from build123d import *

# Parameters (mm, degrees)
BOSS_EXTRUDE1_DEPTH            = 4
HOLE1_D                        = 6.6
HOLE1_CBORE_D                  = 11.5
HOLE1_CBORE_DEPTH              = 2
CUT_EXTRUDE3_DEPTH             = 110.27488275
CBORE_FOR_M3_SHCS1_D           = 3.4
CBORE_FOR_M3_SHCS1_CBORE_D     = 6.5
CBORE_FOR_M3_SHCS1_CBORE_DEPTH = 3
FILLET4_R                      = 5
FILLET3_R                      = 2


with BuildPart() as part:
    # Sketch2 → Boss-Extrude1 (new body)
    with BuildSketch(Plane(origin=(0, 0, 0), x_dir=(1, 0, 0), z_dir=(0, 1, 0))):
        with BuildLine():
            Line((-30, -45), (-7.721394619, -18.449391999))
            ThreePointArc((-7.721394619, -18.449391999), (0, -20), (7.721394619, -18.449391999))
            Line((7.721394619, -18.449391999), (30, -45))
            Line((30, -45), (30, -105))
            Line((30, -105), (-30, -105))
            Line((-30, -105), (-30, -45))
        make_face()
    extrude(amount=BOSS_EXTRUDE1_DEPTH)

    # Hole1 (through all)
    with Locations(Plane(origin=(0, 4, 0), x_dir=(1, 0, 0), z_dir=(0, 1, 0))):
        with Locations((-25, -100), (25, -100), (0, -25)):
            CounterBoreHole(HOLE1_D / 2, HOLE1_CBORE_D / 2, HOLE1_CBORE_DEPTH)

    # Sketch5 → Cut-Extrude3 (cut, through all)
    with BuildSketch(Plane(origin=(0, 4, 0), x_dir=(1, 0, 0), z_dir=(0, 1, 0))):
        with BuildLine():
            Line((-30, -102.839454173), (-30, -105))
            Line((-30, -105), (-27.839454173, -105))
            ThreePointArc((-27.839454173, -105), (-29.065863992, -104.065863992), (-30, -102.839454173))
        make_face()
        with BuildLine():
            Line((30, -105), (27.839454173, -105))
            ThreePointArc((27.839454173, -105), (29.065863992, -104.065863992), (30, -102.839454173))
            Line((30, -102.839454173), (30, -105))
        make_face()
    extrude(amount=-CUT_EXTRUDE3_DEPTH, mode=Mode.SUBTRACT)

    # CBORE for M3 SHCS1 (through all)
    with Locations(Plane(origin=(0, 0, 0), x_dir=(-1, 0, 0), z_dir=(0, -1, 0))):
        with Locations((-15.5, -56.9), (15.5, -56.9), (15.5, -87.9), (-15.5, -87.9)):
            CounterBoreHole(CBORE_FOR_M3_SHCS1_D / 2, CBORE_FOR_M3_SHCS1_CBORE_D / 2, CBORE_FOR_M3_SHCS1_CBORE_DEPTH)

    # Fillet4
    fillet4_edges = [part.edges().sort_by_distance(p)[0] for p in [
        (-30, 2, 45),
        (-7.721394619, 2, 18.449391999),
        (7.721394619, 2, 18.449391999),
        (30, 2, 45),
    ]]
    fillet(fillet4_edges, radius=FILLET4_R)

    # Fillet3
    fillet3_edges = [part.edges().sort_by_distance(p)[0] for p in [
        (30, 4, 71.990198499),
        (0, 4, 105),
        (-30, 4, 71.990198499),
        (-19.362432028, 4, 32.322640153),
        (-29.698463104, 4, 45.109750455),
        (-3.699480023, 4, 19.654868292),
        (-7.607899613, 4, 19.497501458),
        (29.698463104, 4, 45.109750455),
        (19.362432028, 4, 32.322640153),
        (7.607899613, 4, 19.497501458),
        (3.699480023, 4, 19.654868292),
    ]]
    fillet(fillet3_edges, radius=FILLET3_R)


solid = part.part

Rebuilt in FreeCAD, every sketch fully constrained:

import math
import FreeCAD as App
import Part
import Sketcher
from FreeCAD import Vector
Q = App.Units.Quantity


def edges_at(feature, points):
    """Names of the edges that pass closest to the given points."""
    edges = feature.Shape.Edges
    near = lambda p: min(range(len(edges)), key=lambda i: edges[i].distToShape(Part.Vertex(*p))[0])
    return sorted({f"Edge{near(p) + 1}" for p in points})

doc = App.newDocument("Part")
params = doc.addObject("Spreadsheet::Sheet", "Params")
for row, (alias, value) in enumerate([
    ("sketch1_radius", "20 mm"),
    ("sketch1_width", "60 mm"),
    ("pad1_length", "4 mm"),
    ("sketch2_diameter", "6.6 mm"),
    ("hole_diameter", "6.6 mm"),
    ("hole_cbore_diameter", "11.5 mm"),
    ("hole_cbore_depth", "2 mm"),
    ("sketch3_radius", "5.75 mm"),
    ("sketch4_diameter", "3.4 mm"),
    ("hole2_diameter", "3.4 mm"),
    ("hole2_cbore_diameter", "6.5 mm"),
    ("hole2_cbore_depth", "3 mm"),
    ("fillet_radius", "5 mm"),
    ("fillet2_radius", "2 mm"),
], start=1):
    params.set(f"A{row}", alias)
    params.set(f"B{row}", "=" + value)
    params.setAlias(f"B{row}", alias)

body = doc.addObject("PartDesign::Body", "Body")

sketch1 = body.newObject("Sketcher::SketchObject", "Sketch")
sketch1.AttachmentSupport = (doc.getObject("XZ_Plane"), [""])
sketch1.MapMode = "FlatFace"
sketch1.addGeometry(Part.LineSegment(Vector(-7.721395, 18.449392, 0), Vector(-30, 45, 0)), False)
sketch1.addGeometry(Part.LineSegment(Vector(-30, 45, 0), Vector(-30, 105, 0)), False)
sketch1.addGeometry(Part.LineSegment(Vector(-30, 105, 0), Vector(30, 105, 0)), False)
sketch1.addGeometry(Part.LineSegment(Vector(30, 105, 0), Vector(30, 45, 0)), False)
sketch1.addGeometry(Part.LineSegment(Vector(30, 45, 0), Vector(7.721395, 18.449392, 0)), False)
sketch1.addGeometry(Part.ArcOfCircle(Part.Circle(Vector(0, 0, 0), Vector(0, 0, 1), 20), math.radians(67.289833), math.radians(112.710167)), False)
sketch1.addConstraint(Sketcher.Constraint("Coincident", 0, 2, 1, 1))
sketch1.addConstraint(Sketcher.Constraint("Coincident", 1, 2, 2, 1))
sketch1.addConstraint(Sketcher.Constraint("Coincident", 2, 2, 3, 1))
sketch1.addConstraint(Sketcher.Constraint("Coincident", 3, 2, 4, 1))
sketch1.addConstraint(Sketcher.Constraint("Coincident", 4, 2, 5, 1))
sketch1.addConstraint(Sketcher.Constraint("Coincident", 5, 2, 0, 1))
sketch1.addConstraint(Sketcher.Constraint("Vertical", 1))
sketch1.addConstraint(Sketcher.Constraint("Horizontal", 2))
sketch1.addConstraint(Sketcher.Constraint("Vertical", 3))
sketch1.addConstraint(Sketcher.Constraint("Coincident", 5, 3, -1, 1))
sketch1.addConstraint(Sketcher.Constraint("Symmetric", 0, 2, 3, 2, -2))
sketch1.addConstraint(Sketcher.Constraint("Horizontal", 4, 2, 5, 2))
sketch1.addConstraint(Sketcher.Constraint("Equal", 2, 1))
sketch1.addConstraint(Sketcher.Constraint("Radius", 5, Q("20 mm")))
sketch1.addConstraint(Sketcher.Constraint("DistanceX", 2, 1, 2, 2, Q("60 mm")))
sketch1.addConstraint(Sketcher.Constraint("Angle", 0, Q("130 deg")))
sketch1.addConstraint(Sketcher.Constraint("DistanceY", -1, 1, 0, 2, Q("45 mm")))
sketch1.setExpression("Constraints[13]", "Params.sketch1_radius")
sketch1.setExpression("Constraints[14]", "Params.sketch1_width")
pad1 = body.newObject("PartDesign::Pad", "Pad")
pad1.Profile = sketch1
pad1.setExpression("Length", "Params.pad1_length")
pad1.Reversed = True

sketch2 = body.newObject("Sketcher::SketchObject", "Sketch001")
sketch2.AttachmentSupport = (doc.getObject("XZ_Plane"), [""])
sketch2.MapMode = "FlatFace"
sketch2.AttachmentOffset = App.Placement(Vector(0, 0, -4), App.Rotation())
sketch2.addGeometry(Part.Circle(Vector(-25, 100, 0), Vector(0, 0, 1), 3.3), False)
sketch2.addGeometry(Part.Circle(Vector(25, 100, 0), Vector(0, 0, 1), 3.3), False)
sketch2.addGeometry(Part.Circle(Vector(0, 25, 0), Vector(0, 0, 1), 3.3), False)
sketch2.addConstraint(Sketcher.Constraint("Equal", 0, 1))
sketch2.addConstraint(Sketcher.Constraint("Equal", 1, 2))
sketch2.addConstraint(Sketcher.Constraint("Symmetric", 0, 3, 1, 3, -2))
sketch2.addConstraint(Sketcher.Constraint("PointOnObject", 2, 3, -2))
sketch2.addConstraint(Sketcher.Constraint("Diameter", 0, Q("6.6 mm")))
sketch2.addConstraint(Sketcher.Constraint("DistanceX", 0, 3, -1, 1, Q("25 mm")))
sketch2.addConstraint(Sketcher.Constraint("DistanceY", -1, 1, 0, 3, Q("100 mm")))
sketch2.addConstraint(Sketcher.Constraint("DistanceY", -1, 1, 2, 3, Q("25 mm")))
sketch2.setExpression("Constraints[4]", "Params.sketch2_diameter")
doc.recompute()
hole = body.newObject("PartDesign::Hole", "Hole")
hole.Profile = sketch2
hole.ThreadType = "None"
hole.setExpression("Diameter", "Params.hole_diameter")
hole.DepthType = "ThroughAll"
hole.HoleCutType = "Counterbore"
hole.setExpression("HoleCutDiameter", "Params.hole_cbore_diameter")
hole.setExpression("HoleCutDepth", "Params.hole_cbore_depth")
hole.Reversed = True

sketch3 = body.newObject("Sketcher::SketchObject", "Sketch002")
sketch3.AttachmentSupport = (doc.getObject("XZ_Plane"), [""])
sketch3.MapMode = "FlatFace"
sketch3.AttachmentOffset = App.Placement(Vector(0, 0, -4), App.Rotation())
sketch3.addGeometry(Part.LineSegment(Vector(-30, 102.839454, 0), Vector(-30, 105, 0)), False)
sketch3.addGeometry(Part.LineSegment(Vector(-30, 105, 0), Vector(-27.839454, 105, 0)), False)
sketch3.addGeometry(Part.ArcOfCircle(Part.Circle(Vector(-25, 100, 0), Vector(0, 0, 1), 5.75), math.radians(119.591846), math.radians(150.408154)), False)
sketch3.addGeometry(Part.LineSegment(Vector(27.839454, 105, 0), Vector(30, 105, 0)), False)
sketch3.addGeometry(Part.LineSegment(Vector(30, 105, 0), Vector(30, 102.839454, 0)), False)
sketch3.addGeometry(Part.ArcOfCircle(Part.Circle(Vector(25, 100, 0), Vector(0, 0, 1), 5.75), math.radians(29.591846), math.radians(60.408154)), False)
sketch3.addConstraint(Sketcher.Constraint("Coincident", 0, 2, 1, 1))
sketch3.addConstraint(Sketcher.Constraint("Coincident", 1, 2, 2, 1))
sketch3.addConstraint(Sketcher.Constraint("Coincident", 2, 2, 0, 1))
sketch3.addConstraint(Sketcher.Constraint("Coincident", 3, 2, 4, 1))
sketch3.addConstraint(Sketcher.Constraint("Coincident", 4, 2, 5, 1))
sketch3.addConstraint(Sketcher.Constraint("Coincident", 5, 2, 3, 1))
sketch3.addConstraint(Sketcher.Constraint("Vertical", 0))
sketch3.addConstraint(Sketcher.Constraint("Horizontal", 1))
sketch3.addConstraint(Sketcher.Constraint("Horizontal", 3))
sketch3.addConstraint(Sketcher.Constraint("Vertical", 4))
sketch3.addConstraint(Sketcher.Constraint("Equal", 2, 5))
sketch3.addConstraint(Sketcher.Constraint("Symmetric", 2, 3, 5, 3, -2))
sketch3.addConstraint(Sketcher.Constraint("Symmetric", 0, 2, 3, 2, -2))
sketch3.addConstraint(Sketcher.Constraint("Equal", 3, 0))
sketch3.addConstraint(Sketcher.Constraint("Radius", 2, Q("5.75 mm")))
sketch3.addConstraint(Sketcher.Constraint("DistanceX", 2, 3, -1, 1, Q("25 mm")))
sketch3.addConstraint(Sketcher.Constraint("DistanceY", -1, 1, 2, 3, Q("100 mm")))
sketch3.addConstraint(Sketcher.Constraint("DistanceX", 0, 2, -1, 1, Q("30 mm")))
sketch3.setExpression("Constraints[14]", "Params.sketch3_radius")
pocket1 = body.newObject("PartDesign::Pocket", "Pocket")
pocket1.Profile = sketch3
pocket1.Type = "ThroughAll"
pocket1.Reversed = True

sketch4 = body.newObject("Sketcher::SketchObject", "Sketch003")
sketch4.AttachmentSupport = (doc.getObject("XZ_Plane"), [""])
sketch4.MapMode = "FlatFace"
sketch4.addGeometry(Part.Circle(Vector(15.5, 56.9, 0), Vector(0, 0, 1), 1.7), False)
sketch4.addGeometry(Part.Circle(Vector(-15.5, 56.9, 0), Vector(0, 0, 1), 1.7), False)
sketch4.addGeometry(Part.Circle(Vector(-15.5, 87.9, 0), Vector(0, 0, 1), 1.7), False)
sketch4.addGeometry(Part.Circle(Vector(15.5, 87.9, 0), Vector(0, 0, 1), 1.7), False)
sketch4.addConstraint(Sketcher.Constraint("Equal", 0, 1))
sketch4.addConstraint(Sketcher.Constraint("Equal", 1, 2))
sketch4.addConstraint(Sketcher.Constraint("Equal", 2, 3))
sketch4.addConstraint(Sketcher.Constraint("Symmetric", 0, 3, 1, 3, -2))
sketch4.addConstraint(Sketcher.Constraint("Symmetric", 2, 3, 3, 3, -2))
sketch4.addConstraint(Sketcher.Constraint("Vertical", 1, 3, 2, 3))
sketch4.addConstraint(Sketcher.Constraint("Diameter", 0, Q("3.4 mm")))
sketch4.addConstraint(Sketcher.Constraint("DistanceX", 1, 3, 0, 3, Q("31 mm")))
sketch4.addConstraint(Sketcher.Constraint("DistanceY", 1, 3, 2, 3, Q("31 mm")))
sketch4.addConstraint(Sketcher.Constraint("DistanceY", -1, 1, 0, 3, Q("56.9 mm")))
sketch4.setExpression("Constraints[6]", "Params.sketch4_diameter")
doc.recompute()
hole2 = body.newObject("PartDesign::Hole", "Hole001")
hole2.Profile = sketch4
hole2.ThreadType = "None"
hole2.setExpression("Diameter", "Params.hole2_diameter")
hole2.DepthType = "ThroughAll"
hole2.HoleCutType = "Counterbore"
hole2.setExpression("HoleCutDiameter", "Params.hole2_cbore_diameter")
hole2.setExpression("HoleCutDepth", "Params.hole2_cbore_depth")
doc.recompute()

fillet = body.newObject("PartDesign::Fillet", "Fillet")
fillet.Base = (hole2, edges_at(hole2, [
    (-30, 2, 45),
    (-7.721, 2, 18.449),
    (7.721, 2, 18.449),
    (30, 2, 45),
]))
fillet.setExpression("Radius", "Params.fillet_radius")
doc.recompute()

fillet2 = body.newObject("PartDesign::Fillet", "Fillet001")
fillet2.Base = (fillet, edges_at(fillet, [
    (30, 4, 71.99),
    (0, 4, 105),
    (-30, 4, 71.99),
    (-19.362, 4, 32.323),
    (-29.698, 4, 45.11),
    (-3.699, 4, 19.655),
    (-7.608, 4, 19.498),
    (29.698, 4, 45.11),
    (19.362, 4, 32.323),
    (7.608, 4, 19.498),
    (3.699, 4, 19.655),
]))
fillet2.setExpression("Radius", "Params.fillet2_radius")

doc.recompute()
